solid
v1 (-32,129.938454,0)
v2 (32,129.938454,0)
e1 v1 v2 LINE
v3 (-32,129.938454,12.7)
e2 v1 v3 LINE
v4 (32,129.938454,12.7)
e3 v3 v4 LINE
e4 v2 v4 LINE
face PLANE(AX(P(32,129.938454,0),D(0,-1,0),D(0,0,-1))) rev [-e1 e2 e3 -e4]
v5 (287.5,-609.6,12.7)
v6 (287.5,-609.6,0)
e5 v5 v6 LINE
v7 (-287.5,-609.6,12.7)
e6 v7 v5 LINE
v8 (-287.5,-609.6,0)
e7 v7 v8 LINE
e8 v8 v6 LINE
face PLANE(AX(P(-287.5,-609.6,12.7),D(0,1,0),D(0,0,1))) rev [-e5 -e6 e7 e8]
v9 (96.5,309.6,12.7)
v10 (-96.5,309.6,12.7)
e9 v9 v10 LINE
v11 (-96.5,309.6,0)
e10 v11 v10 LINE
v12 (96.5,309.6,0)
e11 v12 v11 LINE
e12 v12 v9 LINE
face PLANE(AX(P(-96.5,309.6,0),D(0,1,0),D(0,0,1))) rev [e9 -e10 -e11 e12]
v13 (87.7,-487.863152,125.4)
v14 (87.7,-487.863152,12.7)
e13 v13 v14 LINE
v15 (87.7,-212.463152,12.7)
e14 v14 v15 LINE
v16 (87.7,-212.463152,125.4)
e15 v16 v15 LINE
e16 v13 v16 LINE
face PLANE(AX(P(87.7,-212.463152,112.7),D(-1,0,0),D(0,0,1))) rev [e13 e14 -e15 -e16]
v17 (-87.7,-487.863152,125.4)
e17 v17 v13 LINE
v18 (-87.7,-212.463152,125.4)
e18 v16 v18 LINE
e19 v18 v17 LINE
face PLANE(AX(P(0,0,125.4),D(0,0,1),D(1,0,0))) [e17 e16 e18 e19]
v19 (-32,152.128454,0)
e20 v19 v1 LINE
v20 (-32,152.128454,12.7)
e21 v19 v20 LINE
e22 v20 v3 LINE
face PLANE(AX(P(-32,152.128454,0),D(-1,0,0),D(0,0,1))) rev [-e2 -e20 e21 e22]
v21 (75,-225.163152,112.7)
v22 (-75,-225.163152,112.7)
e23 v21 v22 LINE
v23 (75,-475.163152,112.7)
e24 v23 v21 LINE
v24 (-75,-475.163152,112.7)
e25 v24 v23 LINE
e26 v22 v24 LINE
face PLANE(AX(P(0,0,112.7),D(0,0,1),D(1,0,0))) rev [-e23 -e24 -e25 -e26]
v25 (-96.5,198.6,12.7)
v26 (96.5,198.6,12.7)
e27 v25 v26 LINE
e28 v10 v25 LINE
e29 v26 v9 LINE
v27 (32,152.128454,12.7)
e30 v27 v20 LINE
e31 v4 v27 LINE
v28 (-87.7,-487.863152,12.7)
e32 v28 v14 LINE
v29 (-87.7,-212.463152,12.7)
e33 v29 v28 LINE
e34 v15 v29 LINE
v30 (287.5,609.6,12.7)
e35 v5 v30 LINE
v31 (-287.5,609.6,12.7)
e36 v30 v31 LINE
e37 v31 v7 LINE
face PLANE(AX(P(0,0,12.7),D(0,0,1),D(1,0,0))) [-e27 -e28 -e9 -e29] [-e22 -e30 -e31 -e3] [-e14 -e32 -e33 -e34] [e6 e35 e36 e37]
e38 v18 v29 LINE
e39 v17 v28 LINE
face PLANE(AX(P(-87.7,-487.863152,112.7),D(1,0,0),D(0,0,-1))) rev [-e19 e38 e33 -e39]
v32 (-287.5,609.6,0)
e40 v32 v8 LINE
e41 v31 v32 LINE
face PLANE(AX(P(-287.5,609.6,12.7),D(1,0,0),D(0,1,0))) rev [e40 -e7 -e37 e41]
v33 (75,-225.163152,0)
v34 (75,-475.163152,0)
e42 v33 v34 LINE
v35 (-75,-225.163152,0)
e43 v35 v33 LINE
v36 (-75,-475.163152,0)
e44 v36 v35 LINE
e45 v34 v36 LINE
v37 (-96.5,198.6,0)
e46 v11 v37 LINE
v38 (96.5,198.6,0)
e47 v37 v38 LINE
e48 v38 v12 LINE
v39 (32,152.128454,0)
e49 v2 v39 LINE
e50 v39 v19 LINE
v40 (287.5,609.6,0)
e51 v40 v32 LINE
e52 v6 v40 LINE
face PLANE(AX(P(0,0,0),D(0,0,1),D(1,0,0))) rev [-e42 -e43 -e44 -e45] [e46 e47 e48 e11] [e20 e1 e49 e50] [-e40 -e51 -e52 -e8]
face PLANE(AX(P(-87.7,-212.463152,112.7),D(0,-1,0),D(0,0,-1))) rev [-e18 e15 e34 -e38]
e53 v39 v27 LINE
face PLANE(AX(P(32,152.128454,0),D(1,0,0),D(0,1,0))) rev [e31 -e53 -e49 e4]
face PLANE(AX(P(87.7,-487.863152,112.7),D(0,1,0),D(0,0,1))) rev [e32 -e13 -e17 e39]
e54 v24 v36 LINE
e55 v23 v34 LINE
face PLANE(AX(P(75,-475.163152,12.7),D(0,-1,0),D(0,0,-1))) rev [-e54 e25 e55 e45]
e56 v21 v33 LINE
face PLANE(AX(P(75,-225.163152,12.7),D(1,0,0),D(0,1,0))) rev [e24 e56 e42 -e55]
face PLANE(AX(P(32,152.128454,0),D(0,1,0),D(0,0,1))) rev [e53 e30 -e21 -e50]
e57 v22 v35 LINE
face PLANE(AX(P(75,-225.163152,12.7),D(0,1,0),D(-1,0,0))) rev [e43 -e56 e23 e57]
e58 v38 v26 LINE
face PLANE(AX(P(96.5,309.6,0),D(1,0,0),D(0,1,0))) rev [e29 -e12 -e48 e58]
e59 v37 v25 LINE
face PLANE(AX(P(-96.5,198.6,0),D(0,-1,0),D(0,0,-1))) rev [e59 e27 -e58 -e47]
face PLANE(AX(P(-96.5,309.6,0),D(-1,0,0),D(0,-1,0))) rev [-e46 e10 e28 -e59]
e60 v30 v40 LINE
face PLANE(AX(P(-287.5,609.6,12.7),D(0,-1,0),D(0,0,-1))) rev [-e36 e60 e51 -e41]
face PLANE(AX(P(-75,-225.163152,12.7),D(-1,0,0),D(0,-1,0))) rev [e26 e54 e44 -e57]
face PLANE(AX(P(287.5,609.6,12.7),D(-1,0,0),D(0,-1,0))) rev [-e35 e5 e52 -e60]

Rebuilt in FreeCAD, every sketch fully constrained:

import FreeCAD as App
import Part
import Sketcher

V = App.Vector
Q = App.Units.Quantity


def add_polygon(sketch, points):
    """Adds a closed chain of lines whose ends are joined by coincident constraints."""
    first, n = sketch.GeometryCount, len(points)
    for a, b in zip(points, points[1:] + points[:1]):
        sketch.addGeometry(Part.LineSegment(App.Vector(*a, 0), App.Vector(*b, 0)), False)
    for i in range(n):
        sketch.addConstraint(Sketcher.Constraint("Coincident", first + i, 2, first + (i + 1) % n, 1))

doc = App.newDocument("Part")
body = doc.addObject("PartDesign::Body", "Body")

sketch1 = doc.addObject("Sketcher::SketchObject", "Sketch")
body.addObject(sketch1)
sketch1.AttachmentSupport = (doc.XY_Plane, [""])
sketch1.MapMode = "FlatFace"
add_polygon(sketch1, [(-288, 610), (-288, -610), (288, -610), (288, 610)])
sketch1.addConstraint([
    Sketcher.Constraint("Vertical", 0),
    Sketcher.Constraint("Horizontal", 1),
    Sketcher.Constraint("Vertical", 2),
    Sketcher.Constraint("Horizontal", 3),
    Sketcher.Constraint("Symmetric", 0, 2, 2, 2, -1, 1),
    Sketcher.Constraint("DistanceX", 1, 1, 1, 2, Q("575 mm")),
    Sketcher.Constraint("DistanceY", 0, 2, 0, 1, Q("1219.2 mm")),
])
pad1 = doc.addObject("PartDesign::Pad", "Pad")
body.addObject(pad1)
pad1.Profile = sketch1
pad1.Length = 12.7

sketch2 = doc.addObject("Sketcher::SketchObject", "Sketch001")
body.addObject(sketch2)
sketch2.AttachmentSupport = (doc.XY_Plane, [""])
sketch2.MapMode = "FlatFace"
sketch2.AttachmentOffset = App.Placement(V(0, 0, 12.7), App.Rotation())
add_polygon(sketch2, [(-96, 310), (-96, 199), (96, 199), (96, 310)])
add_polygon(sketch2, [(-32, 152), (-32, 130), (32, 130), (32, 152)])
sketch2.addConstraint([
    Sketcher.Constraint("Vertical", 0),
    Sketcher.Constraint("Horizontal", 1),
    Sketcher.Constraint("Vertical", 2),
    Sketcher.Constraint("Horizontal", 3),
    Sketcher.Constraint("Vertical", 4),
    Sketcher.Constraint("Horizontal", 5),
    Sketcher.Constraint("Vertical", 6),
    Sketcher.Constraint("Horizontal", 7),
    Sketcher.Constraint("DistanceX", 1, 1, 1, 2, Q("193 mm")),
    Sketcher.Constraint("DistanceX", 5, 1, 5, 2, Q("64 mm")),
    Sketcher.Constraint("DistanceY", 0, 2, 0, 1, Q("111 mm")),
    Sketcher.Constraint("DistanceX", 4, 2, -1, 1, Q("32 mm")),
    Sketcher.Constraint("DistanceY", 4, 2, 4, 1, Q("22.19 mm")),
    Sketcher.Constraint("DistanceX", 0, 2, -1, 1, Q("96.5 mm")),
    Sketcher.Constraint("DistanceY", -1, 1, 0, 2, Q("198.6 mm")),
    Sketcher.Constraint("DistanceY", -1, 1, 4, 2, Q("129.938454 mm")),
])
pocket1 = doc.addObject("PartDesign::Pocket", "Pocket")
body.addObject(pocket1)
pocket1.Profile = sketch2
pocket1.Length = 12.7

sketch3 = doc.addObject("Sketcher::SketchObject", "Sketch002")
body.addObject(sketch3)
sketch3.AttachmentSupport = (doc.XY_Plane, [""])
sketch3.MapMode = "FlatFace"
add_polygon(sketch3, [(75, -225), (75, -475), (-75, -475), (-75, -225)])
sketch3.addConstraint([
    Sketcher.Constraint("Vertical", 0),
    Sketcher.Constraint("Horizontal", 1),
    Sketcher.Constraint("Vertical", 2),
    Sketcher.Constraint("Horizontal", 3),
    Sketcher.Constraint("DistanceX", 1, 2, 1, 1, Q("150 mm")),
    Sketcher.Constraint("DistanceY", 0, 2, 0, 1, Q("250 mm")),
    Sketcher.Constraint("DistanceX", -1, 1, 0, 2, Q("75 mm")),
    Sketcher.Constraint("DistanceY", 0, 2, -1, 1, Q("475.163152 mm")),
])
pocket2 = doc.addObject("PartDesign::Pocket", "Pocket001")
body.addObject(pocket2)
pocket2.Profile = sketch3
pocket2.Length = 12.7
pocket2.Reversed = True

sketch4 = doc.addObject("Sketcher::SketchObject", "Sketch003")
body.addObject(sketch4)
sketch4.AttachmentSupport = (doc.XY_Plane, [""])
sketch4.MapMode = "FlatFace"
sketch4.AttachmentOffset = App.Placement(V(0, 0, 12.7), App.Rotation())
add_polygon(sketch4, [(-88, -212), (-88, -488), (88, -488), (88, -212)])
add_polygon(sketch4, [(75, -475), (-75, -475), (-75, -225), (75, -225)])
sketch4.addConstraint([
    Sketcher.Constraint("Vertical", 0),
    Sketcher.Constraint("Horizontal", 1),
    Sketcher.Constraint("Vertical", 2),
    Sketcher.Constraint("Horizontal", 3),
    Sketcher.Constraint("Horizontal", 4),
    Sketcher.Constraint("Vertical", 5),
    Sketcher.Constraint("Horizontal", 6),
    Sketcher.Constraint("Vertical", 7),
    Sketcher.Constraint("DistanceX", 4, 2, 4, 1, Q("150 mm")),
    Sketcher.Constraint("DistanceY", 5, 1, 5, 2, Q("250 mm")),
    Sketcher.Constraint("DistanceX", 1, 1, 1, 2, Q("175.4 mm")),
    Sketcher.Constraint("DistanceY", 0, 2, 0, 1, Q("275.4 mm")),
    Sketcher.Constraint("DistanceX", 4, 2, -1, 1, Q("75 mm")),
    Sketcher.Constraint("DistanceX", 0, 2, -1, 1, Q("87.7 mm")),
    Sketcher.Constraint("DistanceY", 0, 2, 4, 2, Q("12.7 mm")),
    Sketcher.Constraint("DistanceY", 0, 2, -1, 1, Q("487.863152 mm")),
])
pad2 = doc.addObject("PartDesign::Pad", "Pad001")
body.addObject(pad2)
pad2.Profile = sketch4
pad2.Length = 100

sketch5 = doc.addObject("Sketcher::SketchObject", "Sketch004")
body.addObject(sketch5)
sketch5.AttachmentSupport = (doc.XY_Plane, [""])
sketch5.MapMode = "FlatFace"
sketch5.AttachmentOffset = App.Placement(V(0, 0, 112.7), App.Rotation())
add_polygon(sketch5, [(-88, -212), (-88, -488), (88, -488), (88, -212)])
sketch5.addConstraint([
    Sketcher.Constraint("Vertical", 0),
    Sketcher.Constraint("Horizontal", 1),
    Sketcher.Constraint("Vertical", 2),
    Sketcher.Constraint("Horizontal", 3),
    Sketcher.Constraint("DistanceX", 1, 1, 1, 2, Q("175.4 mm")),
    Sketcher.Constraint("DistanceY", 0, 2, 0, 1, Q("275.4 mm")),
    Sketcher.Constraint("DistanceX", 0, 2, -1, 1, Q("87.7 mm")),
    Sketcher.Constraint("DistanceY", 0, 2, -1, 1, Q("487.863152 mm")),
])
pad3 = doc.addObject("PartDesign::Pad", "Pad002")
body.addObject(pad3)
pad3.Profile = sketch5
pad3.Length = 12.7

doc.recompute()
